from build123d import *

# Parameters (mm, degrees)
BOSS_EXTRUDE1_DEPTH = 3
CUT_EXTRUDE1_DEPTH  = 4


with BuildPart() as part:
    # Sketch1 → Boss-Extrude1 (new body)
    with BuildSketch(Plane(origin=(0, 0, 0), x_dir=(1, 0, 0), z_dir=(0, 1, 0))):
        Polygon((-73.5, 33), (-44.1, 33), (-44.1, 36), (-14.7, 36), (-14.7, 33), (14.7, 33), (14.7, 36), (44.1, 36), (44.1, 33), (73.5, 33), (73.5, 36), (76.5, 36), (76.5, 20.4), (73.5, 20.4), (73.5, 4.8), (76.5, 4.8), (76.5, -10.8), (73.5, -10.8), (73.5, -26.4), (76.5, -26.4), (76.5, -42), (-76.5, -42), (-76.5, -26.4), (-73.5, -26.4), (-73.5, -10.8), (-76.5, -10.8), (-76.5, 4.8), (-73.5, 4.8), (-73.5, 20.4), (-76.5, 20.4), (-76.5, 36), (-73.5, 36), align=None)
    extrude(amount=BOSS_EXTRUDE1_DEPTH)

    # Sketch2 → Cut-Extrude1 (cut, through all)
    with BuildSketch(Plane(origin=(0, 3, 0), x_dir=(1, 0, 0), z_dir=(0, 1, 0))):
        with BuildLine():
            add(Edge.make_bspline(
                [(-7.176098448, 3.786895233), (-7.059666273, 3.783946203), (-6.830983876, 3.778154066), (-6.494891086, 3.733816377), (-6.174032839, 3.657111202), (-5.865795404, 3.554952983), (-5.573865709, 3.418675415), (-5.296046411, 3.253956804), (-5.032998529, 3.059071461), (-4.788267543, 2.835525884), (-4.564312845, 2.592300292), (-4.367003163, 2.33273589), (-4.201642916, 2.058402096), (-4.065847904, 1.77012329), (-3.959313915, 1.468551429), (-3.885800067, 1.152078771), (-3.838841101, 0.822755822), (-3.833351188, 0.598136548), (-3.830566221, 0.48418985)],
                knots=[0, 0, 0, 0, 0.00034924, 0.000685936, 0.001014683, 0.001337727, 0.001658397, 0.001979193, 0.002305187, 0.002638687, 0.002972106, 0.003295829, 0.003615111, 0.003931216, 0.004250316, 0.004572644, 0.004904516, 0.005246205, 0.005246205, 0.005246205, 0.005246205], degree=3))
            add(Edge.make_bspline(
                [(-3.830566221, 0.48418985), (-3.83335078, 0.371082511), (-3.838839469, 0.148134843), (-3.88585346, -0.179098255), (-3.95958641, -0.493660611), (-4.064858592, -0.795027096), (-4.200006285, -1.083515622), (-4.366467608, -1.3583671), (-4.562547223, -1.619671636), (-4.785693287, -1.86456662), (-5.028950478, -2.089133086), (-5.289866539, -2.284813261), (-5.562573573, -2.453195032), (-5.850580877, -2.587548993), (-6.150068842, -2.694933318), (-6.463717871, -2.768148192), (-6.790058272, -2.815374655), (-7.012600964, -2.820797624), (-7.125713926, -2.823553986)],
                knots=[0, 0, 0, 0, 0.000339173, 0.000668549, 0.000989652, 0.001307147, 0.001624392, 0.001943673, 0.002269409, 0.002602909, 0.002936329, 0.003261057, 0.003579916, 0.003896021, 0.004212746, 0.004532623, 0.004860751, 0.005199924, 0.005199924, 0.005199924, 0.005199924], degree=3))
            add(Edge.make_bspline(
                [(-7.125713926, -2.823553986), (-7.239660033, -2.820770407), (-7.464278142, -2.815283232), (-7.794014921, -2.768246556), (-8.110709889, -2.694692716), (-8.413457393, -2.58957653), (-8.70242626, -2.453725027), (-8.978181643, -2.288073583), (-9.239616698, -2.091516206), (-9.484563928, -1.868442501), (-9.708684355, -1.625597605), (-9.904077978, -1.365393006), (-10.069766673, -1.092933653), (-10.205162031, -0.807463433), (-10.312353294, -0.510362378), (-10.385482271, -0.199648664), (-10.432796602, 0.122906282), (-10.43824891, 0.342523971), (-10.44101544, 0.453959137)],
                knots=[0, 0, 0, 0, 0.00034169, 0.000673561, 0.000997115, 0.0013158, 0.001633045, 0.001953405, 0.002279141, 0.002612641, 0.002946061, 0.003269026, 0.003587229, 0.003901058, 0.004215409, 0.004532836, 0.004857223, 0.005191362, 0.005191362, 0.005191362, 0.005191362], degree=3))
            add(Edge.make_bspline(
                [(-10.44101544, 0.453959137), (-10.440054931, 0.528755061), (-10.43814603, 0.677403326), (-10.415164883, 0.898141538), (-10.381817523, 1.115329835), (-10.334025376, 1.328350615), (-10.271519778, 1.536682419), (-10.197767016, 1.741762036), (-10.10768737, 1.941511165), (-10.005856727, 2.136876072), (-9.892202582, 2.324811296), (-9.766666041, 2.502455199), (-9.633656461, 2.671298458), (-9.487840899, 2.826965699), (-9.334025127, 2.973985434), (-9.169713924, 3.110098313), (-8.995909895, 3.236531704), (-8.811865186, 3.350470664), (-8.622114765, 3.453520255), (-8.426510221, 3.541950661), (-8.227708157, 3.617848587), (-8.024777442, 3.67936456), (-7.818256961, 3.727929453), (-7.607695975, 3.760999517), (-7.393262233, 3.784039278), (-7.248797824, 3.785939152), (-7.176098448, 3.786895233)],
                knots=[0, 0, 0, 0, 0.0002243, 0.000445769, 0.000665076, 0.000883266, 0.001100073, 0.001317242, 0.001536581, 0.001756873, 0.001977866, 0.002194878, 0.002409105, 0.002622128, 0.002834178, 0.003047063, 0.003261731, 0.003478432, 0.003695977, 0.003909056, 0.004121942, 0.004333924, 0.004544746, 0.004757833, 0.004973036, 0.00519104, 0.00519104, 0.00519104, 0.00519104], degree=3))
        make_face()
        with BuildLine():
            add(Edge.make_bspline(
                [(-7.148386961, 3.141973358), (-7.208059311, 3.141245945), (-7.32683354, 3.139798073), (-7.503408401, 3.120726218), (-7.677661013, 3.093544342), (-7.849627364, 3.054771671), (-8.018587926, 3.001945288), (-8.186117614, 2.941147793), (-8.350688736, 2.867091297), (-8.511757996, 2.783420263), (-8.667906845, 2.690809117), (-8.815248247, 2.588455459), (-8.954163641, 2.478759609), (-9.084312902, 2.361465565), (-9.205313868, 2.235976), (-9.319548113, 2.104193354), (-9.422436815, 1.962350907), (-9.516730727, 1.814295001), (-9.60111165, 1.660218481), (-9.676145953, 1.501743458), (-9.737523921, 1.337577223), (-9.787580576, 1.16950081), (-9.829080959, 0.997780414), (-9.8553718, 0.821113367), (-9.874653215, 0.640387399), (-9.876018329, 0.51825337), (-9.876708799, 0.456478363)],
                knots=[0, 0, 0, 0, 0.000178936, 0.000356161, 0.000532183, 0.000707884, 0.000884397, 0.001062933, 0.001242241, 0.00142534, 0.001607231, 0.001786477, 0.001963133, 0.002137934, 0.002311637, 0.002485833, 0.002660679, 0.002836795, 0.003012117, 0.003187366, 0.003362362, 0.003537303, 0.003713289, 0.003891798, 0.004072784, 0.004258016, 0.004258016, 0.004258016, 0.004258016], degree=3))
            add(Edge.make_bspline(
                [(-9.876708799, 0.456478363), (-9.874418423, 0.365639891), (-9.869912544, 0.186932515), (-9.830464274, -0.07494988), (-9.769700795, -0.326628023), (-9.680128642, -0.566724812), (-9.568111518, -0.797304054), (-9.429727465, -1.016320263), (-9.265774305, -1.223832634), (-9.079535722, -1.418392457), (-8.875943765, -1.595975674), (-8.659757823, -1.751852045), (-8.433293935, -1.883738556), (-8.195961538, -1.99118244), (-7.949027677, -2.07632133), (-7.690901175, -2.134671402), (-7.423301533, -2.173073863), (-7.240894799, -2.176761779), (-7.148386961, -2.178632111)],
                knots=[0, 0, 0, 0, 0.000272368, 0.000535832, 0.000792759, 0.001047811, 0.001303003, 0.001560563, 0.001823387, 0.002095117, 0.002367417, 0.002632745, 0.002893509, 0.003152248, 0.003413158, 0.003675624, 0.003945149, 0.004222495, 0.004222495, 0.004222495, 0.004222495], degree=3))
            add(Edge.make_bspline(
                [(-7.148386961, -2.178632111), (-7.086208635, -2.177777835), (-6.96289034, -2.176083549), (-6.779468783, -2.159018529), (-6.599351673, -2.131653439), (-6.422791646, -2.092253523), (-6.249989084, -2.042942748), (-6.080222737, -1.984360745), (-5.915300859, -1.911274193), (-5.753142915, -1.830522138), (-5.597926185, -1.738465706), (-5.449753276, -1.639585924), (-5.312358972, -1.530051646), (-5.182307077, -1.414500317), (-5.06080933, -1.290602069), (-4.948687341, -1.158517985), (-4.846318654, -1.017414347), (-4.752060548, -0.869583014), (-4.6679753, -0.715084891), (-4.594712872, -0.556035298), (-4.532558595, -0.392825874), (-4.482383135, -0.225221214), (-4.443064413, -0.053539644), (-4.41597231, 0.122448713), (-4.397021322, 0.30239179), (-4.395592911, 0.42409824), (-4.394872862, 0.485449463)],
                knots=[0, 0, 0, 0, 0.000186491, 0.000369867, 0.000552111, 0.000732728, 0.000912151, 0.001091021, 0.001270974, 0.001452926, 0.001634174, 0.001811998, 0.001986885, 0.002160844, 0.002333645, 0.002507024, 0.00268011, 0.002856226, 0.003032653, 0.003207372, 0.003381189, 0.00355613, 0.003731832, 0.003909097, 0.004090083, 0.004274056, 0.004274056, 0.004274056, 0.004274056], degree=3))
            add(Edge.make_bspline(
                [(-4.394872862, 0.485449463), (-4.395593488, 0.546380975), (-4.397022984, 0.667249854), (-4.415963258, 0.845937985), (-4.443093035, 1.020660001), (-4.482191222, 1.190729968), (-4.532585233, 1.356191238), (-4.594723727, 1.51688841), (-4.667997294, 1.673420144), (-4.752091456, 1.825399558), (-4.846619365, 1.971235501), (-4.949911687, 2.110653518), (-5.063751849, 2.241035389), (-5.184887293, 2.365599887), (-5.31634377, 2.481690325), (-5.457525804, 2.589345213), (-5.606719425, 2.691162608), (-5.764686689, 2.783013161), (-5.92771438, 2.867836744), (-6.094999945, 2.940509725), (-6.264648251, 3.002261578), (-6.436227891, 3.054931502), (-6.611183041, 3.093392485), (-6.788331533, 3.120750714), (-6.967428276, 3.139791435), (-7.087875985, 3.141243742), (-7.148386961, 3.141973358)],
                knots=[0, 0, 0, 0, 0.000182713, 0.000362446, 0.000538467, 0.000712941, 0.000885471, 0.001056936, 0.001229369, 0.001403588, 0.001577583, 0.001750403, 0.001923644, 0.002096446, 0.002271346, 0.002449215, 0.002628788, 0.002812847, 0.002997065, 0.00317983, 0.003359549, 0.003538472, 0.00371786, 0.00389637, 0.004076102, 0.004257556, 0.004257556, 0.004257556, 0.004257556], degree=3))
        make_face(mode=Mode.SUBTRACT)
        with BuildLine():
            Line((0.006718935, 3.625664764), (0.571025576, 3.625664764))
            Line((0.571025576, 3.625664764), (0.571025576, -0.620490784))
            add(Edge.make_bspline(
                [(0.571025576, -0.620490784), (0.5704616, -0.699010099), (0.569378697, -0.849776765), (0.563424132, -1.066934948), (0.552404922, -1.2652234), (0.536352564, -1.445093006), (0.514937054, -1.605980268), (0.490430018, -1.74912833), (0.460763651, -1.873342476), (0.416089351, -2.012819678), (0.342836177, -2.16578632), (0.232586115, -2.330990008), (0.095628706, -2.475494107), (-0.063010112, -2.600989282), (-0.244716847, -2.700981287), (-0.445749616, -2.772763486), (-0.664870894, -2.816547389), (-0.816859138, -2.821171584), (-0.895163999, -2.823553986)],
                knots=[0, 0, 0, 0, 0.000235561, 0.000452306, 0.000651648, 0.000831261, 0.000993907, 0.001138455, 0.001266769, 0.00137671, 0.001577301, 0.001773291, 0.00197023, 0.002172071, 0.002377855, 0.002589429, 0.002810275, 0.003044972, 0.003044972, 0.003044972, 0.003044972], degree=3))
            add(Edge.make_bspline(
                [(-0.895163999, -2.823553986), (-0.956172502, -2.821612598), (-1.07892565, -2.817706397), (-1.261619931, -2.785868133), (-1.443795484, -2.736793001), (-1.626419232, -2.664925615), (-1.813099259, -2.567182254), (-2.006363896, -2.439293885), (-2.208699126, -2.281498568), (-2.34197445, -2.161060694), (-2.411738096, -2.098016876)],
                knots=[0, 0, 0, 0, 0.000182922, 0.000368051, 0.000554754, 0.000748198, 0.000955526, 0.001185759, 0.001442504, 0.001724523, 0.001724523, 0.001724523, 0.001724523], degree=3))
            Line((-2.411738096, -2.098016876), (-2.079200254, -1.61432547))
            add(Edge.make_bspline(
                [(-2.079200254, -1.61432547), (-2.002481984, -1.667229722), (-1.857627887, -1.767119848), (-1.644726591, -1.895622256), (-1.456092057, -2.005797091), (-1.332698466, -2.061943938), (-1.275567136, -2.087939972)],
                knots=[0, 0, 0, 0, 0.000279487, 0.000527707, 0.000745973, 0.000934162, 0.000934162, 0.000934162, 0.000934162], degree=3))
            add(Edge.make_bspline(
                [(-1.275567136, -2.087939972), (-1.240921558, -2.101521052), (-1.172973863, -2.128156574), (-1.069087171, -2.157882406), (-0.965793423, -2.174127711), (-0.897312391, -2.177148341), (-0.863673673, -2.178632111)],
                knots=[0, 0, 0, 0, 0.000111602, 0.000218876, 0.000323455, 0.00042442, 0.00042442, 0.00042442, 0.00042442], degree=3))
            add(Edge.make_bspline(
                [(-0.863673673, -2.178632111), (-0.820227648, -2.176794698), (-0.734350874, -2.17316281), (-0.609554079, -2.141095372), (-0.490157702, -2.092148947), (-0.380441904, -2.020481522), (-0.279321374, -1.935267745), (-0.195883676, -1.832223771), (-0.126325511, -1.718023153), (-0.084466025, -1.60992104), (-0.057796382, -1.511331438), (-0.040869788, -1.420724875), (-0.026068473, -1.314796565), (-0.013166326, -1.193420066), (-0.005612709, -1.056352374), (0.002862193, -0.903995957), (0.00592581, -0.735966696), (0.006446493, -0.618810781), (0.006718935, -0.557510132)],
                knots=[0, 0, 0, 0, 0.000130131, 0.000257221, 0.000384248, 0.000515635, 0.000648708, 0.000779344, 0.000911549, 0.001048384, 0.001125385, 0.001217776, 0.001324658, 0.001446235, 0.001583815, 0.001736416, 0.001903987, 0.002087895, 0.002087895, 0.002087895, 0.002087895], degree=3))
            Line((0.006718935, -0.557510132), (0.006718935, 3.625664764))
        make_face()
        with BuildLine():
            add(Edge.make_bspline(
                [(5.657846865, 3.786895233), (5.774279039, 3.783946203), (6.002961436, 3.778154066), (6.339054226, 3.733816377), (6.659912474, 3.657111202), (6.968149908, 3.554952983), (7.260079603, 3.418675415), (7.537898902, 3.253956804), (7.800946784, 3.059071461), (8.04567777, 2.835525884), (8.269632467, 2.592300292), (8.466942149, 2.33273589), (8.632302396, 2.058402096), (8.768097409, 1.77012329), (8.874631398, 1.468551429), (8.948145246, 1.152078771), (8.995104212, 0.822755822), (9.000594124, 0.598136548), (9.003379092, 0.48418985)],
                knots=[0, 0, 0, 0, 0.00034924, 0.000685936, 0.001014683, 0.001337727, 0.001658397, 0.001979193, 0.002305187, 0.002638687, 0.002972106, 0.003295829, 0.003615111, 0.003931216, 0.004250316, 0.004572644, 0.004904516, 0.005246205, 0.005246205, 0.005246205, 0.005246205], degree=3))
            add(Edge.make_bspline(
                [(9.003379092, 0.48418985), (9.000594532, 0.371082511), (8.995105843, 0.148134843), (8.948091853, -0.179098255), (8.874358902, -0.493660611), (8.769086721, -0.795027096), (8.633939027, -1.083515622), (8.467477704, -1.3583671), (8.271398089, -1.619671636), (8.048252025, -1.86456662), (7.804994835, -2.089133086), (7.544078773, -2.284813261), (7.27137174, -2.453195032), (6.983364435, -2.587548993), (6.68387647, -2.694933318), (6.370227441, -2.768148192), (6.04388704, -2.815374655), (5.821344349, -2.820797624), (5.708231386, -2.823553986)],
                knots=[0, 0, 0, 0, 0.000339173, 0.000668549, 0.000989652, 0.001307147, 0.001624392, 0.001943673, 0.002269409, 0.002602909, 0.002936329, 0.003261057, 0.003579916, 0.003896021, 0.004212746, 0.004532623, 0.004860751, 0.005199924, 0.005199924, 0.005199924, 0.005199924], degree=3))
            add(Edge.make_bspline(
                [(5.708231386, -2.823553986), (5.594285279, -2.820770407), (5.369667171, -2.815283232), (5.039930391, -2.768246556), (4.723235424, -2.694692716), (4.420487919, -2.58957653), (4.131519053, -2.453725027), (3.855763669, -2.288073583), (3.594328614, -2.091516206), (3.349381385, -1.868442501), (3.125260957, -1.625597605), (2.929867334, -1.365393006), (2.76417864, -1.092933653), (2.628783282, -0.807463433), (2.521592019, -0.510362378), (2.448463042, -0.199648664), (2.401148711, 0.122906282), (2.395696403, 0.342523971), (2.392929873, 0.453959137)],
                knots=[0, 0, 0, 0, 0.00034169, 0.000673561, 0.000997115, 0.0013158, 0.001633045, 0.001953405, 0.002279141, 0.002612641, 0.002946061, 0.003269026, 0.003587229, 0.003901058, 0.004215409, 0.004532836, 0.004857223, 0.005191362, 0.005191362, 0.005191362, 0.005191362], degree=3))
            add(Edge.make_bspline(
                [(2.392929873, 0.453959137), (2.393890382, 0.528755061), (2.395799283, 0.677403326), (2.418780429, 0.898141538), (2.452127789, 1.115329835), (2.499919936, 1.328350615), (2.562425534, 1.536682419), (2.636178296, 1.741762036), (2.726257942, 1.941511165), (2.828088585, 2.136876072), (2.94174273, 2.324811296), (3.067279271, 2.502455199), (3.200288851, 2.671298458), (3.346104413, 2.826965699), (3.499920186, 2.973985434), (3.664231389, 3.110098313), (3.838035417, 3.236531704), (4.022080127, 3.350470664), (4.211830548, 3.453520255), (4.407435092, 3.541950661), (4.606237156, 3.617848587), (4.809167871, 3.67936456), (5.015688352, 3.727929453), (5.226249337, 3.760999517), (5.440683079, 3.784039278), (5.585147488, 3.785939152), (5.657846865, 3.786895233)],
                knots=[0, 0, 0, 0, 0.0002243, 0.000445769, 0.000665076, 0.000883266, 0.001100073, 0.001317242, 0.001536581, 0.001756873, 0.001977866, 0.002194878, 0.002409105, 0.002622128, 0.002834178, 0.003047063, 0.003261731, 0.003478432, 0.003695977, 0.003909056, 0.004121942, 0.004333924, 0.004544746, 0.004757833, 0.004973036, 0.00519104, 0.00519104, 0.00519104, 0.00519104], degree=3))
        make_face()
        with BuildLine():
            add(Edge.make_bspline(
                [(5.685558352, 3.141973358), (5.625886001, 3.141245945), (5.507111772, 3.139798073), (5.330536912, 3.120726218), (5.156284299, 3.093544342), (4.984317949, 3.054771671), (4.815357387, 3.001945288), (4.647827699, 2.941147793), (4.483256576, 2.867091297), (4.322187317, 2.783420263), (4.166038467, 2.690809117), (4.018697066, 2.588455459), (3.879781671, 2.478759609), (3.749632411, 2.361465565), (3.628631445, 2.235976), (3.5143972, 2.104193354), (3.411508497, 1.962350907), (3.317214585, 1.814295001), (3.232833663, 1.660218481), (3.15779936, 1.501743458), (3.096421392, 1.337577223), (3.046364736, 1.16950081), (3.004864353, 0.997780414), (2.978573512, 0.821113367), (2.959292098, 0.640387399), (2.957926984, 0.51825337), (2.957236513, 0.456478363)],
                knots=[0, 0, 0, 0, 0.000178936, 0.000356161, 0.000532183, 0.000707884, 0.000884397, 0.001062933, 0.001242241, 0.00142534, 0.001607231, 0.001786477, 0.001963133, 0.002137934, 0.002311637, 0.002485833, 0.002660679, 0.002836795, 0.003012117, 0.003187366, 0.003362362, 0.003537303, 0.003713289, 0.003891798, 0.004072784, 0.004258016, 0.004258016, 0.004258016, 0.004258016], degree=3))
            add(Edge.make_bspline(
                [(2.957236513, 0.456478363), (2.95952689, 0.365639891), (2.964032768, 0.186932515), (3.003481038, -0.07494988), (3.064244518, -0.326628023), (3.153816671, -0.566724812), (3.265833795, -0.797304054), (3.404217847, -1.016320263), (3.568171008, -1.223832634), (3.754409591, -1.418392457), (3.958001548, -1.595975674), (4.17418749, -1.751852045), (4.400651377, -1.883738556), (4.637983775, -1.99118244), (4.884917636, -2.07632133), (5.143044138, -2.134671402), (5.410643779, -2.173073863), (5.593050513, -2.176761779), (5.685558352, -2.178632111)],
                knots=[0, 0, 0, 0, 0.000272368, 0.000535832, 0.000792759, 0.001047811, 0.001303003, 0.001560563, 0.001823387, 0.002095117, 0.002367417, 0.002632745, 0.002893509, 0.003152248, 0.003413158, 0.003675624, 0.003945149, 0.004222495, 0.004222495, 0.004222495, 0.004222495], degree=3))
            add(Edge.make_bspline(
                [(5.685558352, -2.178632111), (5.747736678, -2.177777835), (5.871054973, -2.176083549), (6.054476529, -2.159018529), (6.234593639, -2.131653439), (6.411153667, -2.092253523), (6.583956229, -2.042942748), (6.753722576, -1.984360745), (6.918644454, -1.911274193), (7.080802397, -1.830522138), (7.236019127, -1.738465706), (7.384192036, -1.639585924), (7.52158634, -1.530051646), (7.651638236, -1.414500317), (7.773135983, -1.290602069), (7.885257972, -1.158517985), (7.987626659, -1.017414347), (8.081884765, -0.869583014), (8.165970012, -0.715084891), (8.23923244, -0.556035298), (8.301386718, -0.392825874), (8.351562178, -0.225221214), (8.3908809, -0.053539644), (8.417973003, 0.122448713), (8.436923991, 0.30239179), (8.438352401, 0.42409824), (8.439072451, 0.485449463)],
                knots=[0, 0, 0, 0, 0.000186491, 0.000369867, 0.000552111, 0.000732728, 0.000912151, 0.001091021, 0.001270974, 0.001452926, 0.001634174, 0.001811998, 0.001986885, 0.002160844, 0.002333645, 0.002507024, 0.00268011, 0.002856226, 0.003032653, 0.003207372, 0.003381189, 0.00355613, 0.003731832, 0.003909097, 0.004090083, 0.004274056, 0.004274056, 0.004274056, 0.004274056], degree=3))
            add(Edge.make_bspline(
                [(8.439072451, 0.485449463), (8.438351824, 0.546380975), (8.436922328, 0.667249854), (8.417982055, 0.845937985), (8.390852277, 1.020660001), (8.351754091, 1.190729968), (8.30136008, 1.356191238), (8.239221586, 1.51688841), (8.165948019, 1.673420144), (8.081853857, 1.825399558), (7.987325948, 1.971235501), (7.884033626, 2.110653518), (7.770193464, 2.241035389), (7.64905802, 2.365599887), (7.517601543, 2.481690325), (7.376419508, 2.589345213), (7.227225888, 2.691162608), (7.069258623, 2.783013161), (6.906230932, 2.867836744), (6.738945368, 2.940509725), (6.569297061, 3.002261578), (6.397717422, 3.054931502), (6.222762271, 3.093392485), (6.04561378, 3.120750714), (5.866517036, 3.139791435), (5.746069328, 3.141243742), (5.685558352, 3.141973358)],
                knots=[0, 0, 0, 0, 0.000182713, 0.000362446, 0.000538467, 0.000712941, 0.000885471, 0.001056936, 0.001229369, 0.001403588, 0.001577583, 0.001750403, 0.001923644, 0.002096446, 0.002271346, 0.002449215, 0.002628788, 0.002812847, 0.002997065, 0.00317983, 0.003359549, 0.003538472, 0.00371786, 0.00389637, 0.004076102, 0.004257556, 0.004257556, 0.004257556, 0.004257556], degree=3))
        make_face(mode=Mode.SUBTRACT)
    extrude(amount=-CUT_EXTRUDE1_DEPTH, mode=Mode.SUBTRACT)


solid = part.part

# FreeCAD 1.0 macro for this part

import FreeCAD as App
import Part
import Sketcher
from FreeCAD import Vector
Q = App.Units.Quantity

doc = App.newDocument("Part")
params = doc.addObject("Spreadsheet::Sheet", "Params")
for row, (alias, value) in enumerate([
    ("sketch1_width", "3 mm"),
    ("sketch1_width2", "153 mm"),
    ("sketch1_height", "15.6 mm"),
    ("pad1_length", "3 mm"),
], start=1):
    params.set(f"A{row}", alias)
    params.set(f"B{row}", "=" + value)
    params.setAlias(f"B{row}", alias)

body = doc.addObject("PartDesign::Body", "Body")
body.AllowCompound = True

# Sketch on XZ plane
sketch1 = doc.addObject("Sketcher::SketchObject", "Sketch")
body.addObject(sketch1)
sketch1.AttachmentSupport = (doc.XZ_Plane, [""])
sketch1.MapMode = "FlatFace"
sketch1.addGeometry(Part.LineSegment(Vector(-44.1, -33, 0), Vector(-73.5, -33, 0)), False)
sketch1.addGeometry(Part.LineSegment(Vector(-73.5, -33, 0), Vector(-73.5, -36, 0)), False)
sketch1.addGeometry(Part.LineSegment(Vector(-73.5, -36, 0), Vector(-76.5, -36, 0)), False)
sketch1.addGeometry(Part.LineSegment(Vector(-76.5, -36, 0), Vector(-76.5, -20.4, 0)), False)
sketch1.addGeometry(Part.LineSegment(Vector(-76.5, -20.4, 0), Vector(-73.5, -20.4, 0)), False)
sketch1.addGeometry(Part.LineSegment(Vector(-73.5, -20.4, 0), Vector(-73.5, -4.8, 0)), False)
sketch1.addGeometry(Part.LineSegment(Vector(-73.5, -4.8, 0), Vector(-76.5, -4.8, 0)), False)
sketch1.addGeometry(Part.LineSegment(Vector(-76.5, -4.8, 0), Vector(-76.5, 10.8, 0)), False)
sketch1.addGeometry(Part.LineSegment(Vector(-76.5, 10.8, 0), Vector(-73.5, 10.8, 0)), False)
sketch1.addGeometry(Part.LineSegment(Vector(-73.5, 10.8, 0), Vector(-73.5, 26.4, 0)), False)
sketch1.addGeometry(Part.LineSegment(Vector(-73.5, 26.4, 0), Vector(-76.5, 26.4, 0)), False)
sketch1.addGeometry(Part.LineSegment(Vector(-76.5, 26.4, 0), Vector(-76.5, 42, 0)), False)
sketch1.addGeometry(Part.LineSegment(Vector(-76.5, 42, 0), Vector(76.5, 42, 0)), False)
sketch1.addGeometry(Part.LineSegment(Vector(76.5, 42, 0), Vector(76.5, 26.4, 0)), False)
sketch1.addGeometry(Part.LineSegment(Vector(76.5, 26.4, 0), Vector(73.5, 26.4, 0)), False)
sketch1.addGeometry(Part.LineSegment(Vector(73.5, 26.4, 0), Vector(73.5, 10.8, 0)), False)
sketch1.addGeometry(Part.LineSegment(Vector(73.5, 10.8, 0), Vector(76.5, 10.8, 0)), False)
sketch1.addGeometry(Part.LineSegment(Vector(76.5, 10.8, 0), Vector(76.5, -4.8, 0)), False)
sketch1.addGeometry(Part.LineSegment(Vector(76.5, -4.8, 0), Vector(73.5, -4.8, 0)), False)
sketch1.addGeometry(Part.LineSegment(Vector(73.5, -4.8, 0), Vector(73.5, -20.4, 0)), False)
sketch1.addGeometry(Part.LineSegment(Vector(73.5, -20.4, 0), Vector(76.5, -20.4, 0)), False)
sketch1.addGeometry(Part.LineSegment(Vector(76.5, -20.4, 0), Vector(76.5, -36, 0)), False)
sketch1.addGeometry(Part.LineSegment(Vector(76.5, -36, 0), Vector(73.5, -36, 0)), False)
sketch1.addGeometry(Part.LineSegment(Vector(73.5, -36, 0), Vector(73.5, -33, 0)), False)
sketch1.addGeometry(Part.LineSegment(Vector(73.5, -33, 0), Vector(44.1, -33, 0)), False)
sketch1.addGeometry(Part.LineSegment(Vector(44.1, -33, 0), Vector(44.1, -36, 0)), False)
sketch1.addGeometry(Part.LineSegment(Vector(44.1, -36, 0), Vector(14.7, -36, 0)), False)
sketch1.addGeometry(Part.LineSegment(Vector(14.7, -36, 0), Vector(14.7, -33, 0)), False)
sketch1.addGeometry(Part.LineSegment(Vector(14.7, -33, 0), Vector(-14.7, -33, 0)), False)
sketch1.addGeometry(Part.LineSegment(Vector(-14.7, -33, 0), Vector(-14.7, -36, 0)), False)
sketch1.addGeometry(Part.LineSegment(Vector(-14.7, -36, 0), Vector(-44.1, -36, 0)), False)
sketch1.addGeometry(Part.LineSegment(Vector(-44.1, -36, 0), Vector(-44.1, -33, 0)), False)
sketch1.addConstraint(Sketcher.Constraint("Coincident", 0, 2, 1, 1))
sketch1.addConstraint(Sketcher.Constraint("Coincident", 1, 2, 2, 1))
sketch1.addConstraint(Sketcher.Constraint("Coincident", 2, 2, 3, 1))
sketch1.addConstraint(Sketcher.Constraint("Coincident", 3, 2, 4, 1))
sketch1.addConstraint(Sketcher.Constraint("Coincident", 4, 2, 5, 1))
sketch1.addConstraint(Sketcher.Constraint("Coincident", 5, 2, 6, 1))
sketch1.addConstraint(Sketcher.Constraint("Coincident", 6, 2, 7, 1))
sketch1.addConstraint(Sketcher.Constraint("Coincident", 7, 2, 8, 1))
sketch1.addConstraint(Sketcher.Constraint("Coincident", 8, 2, 9, 1))
sketch1.addConstraint(Sketcher.Constraint("Coincident", 9, 2, 10, 1))
sketch1.addConstraint(Sketcher.Constraint("Coincident", 10, 2, 11, 1))
sketch1.addConstraint(Sketcher.Constraint("Coincident", 11, 2, 12, 1))
sketch1.addConstraint(Sketcher.Constraint("Coincident", 12, 2, 13, 1))
sketch1.addConstraint(Sketcher.Constraint("Coincident", 13, 2, 14, 1))
sketch1.addConstraint(Sketcher.Constraint("Coincident", 14, 2, 15, 1))
sketch1.addConstraint(Sketcher.Constraint("Coincident", 15, 2, 16, 1))
sketch1.addConstraint(Sketcher.Constraint("Coincident", 16, 2, 17, 1))
sketch1.addConstraint(Sketcher.Constraint("Coincident", 17, 2, 18, 1))
sketch1.addConstraint(Sketcher.Constraint("Coincident", 18, 2, 19, 1))
sketch1.addConstraint(Sketcher.Constraint("Coincident", 19, 2, 20, 1))
sketch1.addConstraint(Sketcher.Constraint("Coincident", 20, 2, 21, 1))
sketch1.addConstraint(Sketcher.Constraint("Coincident", 21, 2, 22, 1))
sketch1.addConstraint(Sketcher.Constraint("Coincident", 22, 2, 23, 1))
sketch1.addConstraint(Sketcher.Constraint("Coincident", 23, 2, 24, 1))
sketch1.addConstraint(Sketcher.Constraint("Coincident", 24, 2, 25, 1))
sketch1.addConstraint(Sketcher.Constraint("Coincident", 25, 2, 26, 1))
sketch1.addConstraint(Sketcher.Constraint("Coincident", 26, 2, 27, 1))
sketch1.addConstraint(Sketcher.Constraint("Coincident", 27, 2, 28, 1))
sketch1.addConstraint(Sketcher.Constraint("Coincident", 28, 2, 29, 1))
sketch1.addConstraint(Sketcher.Constraint("Coincident", 29, 2, 30, 1))
sketch1.addConstraint(Sketcher.Constraint("Coincident", 30, 2, 31, 1))
sketch1.addConstraint(Sketcher.Constraint("Coincident", 31, 2, 0, 1))
sketch1.addConstraint(Sketcher.Constraint("Horizontal", 0))
sketch1.addConstraint(Sketcher.Constraint("Vertical", 1))
sketch1.addConstraint(Sketcher.Constraint("Horizontal", 2))
sketch1.addConstraint(Sketcher.Constraint("Vertical", 3))
sketch1.addConstraint(Sketcher.Constraint("Horizontal", 4))
sketch1.addConstraint(Sketcher.Constraint("Vertical", 5))
sketch1.addConstraint(Sketcher.Constraint("Horizontal", 6))
sketch1.addConstraint(Sketcher.Constraint("Vertical", 7))
sketch1.addConstraint(Sketcher.Constraint("Horizontal", 8))
sketch1.addConstraint(Sketcher.Constraint("Vertical", 9))
sketch1.addConstraint(Sketcher.Constraint("Horizontal", 10))
sketch1.addConstraint(Sketcher.Constraint("Vertical", 11))
sketch1.addConstraint(Sketcher.Constraint("Horizontal", 12))
sketch1.addConstraint(Sketcher.Constraint("Vertical", 13))
sketch1.addConstraint(Sketcher.Constraint("Horizontal", 14))
sketch1.addConstraint(Sketcher.Constraint("Vertical", 15))
sketch1.addConstraint(Sketcher.Constraint("Horizontal", 16))
sketch1.addConstraint(Sketcher.Constraint("Vertical", 17))
sketch1.addConstraint(Sketcher.Constraint("Horizontal", 18))
sketch1.addConstraint(Sketcher.Constraint("Vertical", 19))
sketch1.addConstraint(Sketcher.Constraint("Horizontal", 20))
sketch1.addConstraint(Sketcher.Constraint("Vertical", 21))
sketch1.addConstraint(Sketcher.Constraint("Horizontal", 22))
sketch1.addConstraint(Sketcher.Constraint("Vertical", 23))
sketch1.addConstraint(Sketcher.Constraint("Horizontal", 24))
sketch1.addConstraint(Sketcher.Constraint("Vertical", 25))
sketch1.addConstraint(Sketcher.Constraint("Horizontal", 26))
sketch1.addConstraint(Sketcher.Constraint("Vertical", 27))
sketch1.addConstraint(Sketcher.Constraint("Horizontal", 28))
sketch1.addConstraint(Sketcher.Constraint("Vertical", 29))
sketch1.addConstraint(Sketcher.Constraint("Horizontal", 30))
sketch1.addConstraint(Sketcher.Constraint("Vertical", 31))
sketch1.addConstraint(Sketcher.Constraint("Symmetric", 10, 2, 13, 2, -2))
sketch1.addConstraint(Sketcher.Constraint("Symmetric", 8, 2, 15, 2, -2))
sketch1.addConstraint(Sketcher.Constraint("Symmetric", 6, 2, 17, 2, -2))
sketch1.addConstraint(Sketcher.Constraint("Symmetric", 4, 2, 19, 2, -2))
sketch1.addConstraint(Sketcher.Constraint("Symmetric", 2, 2, 21, 2, -2))
sketch1.addConstraint(Sketcher.Constraint("Symmetric", 0, 2, 23, 2, -2))
sketch1.addConstraint(Sketcher.Constraint("Symmetric", 26, 2, 29, 2, -2))
sketch1.addConstraint(Sketcher.Constraint("Horizontal", 22, 2, 25, 2))
sketch1.addConstraint(Sketcher.Constraint("Horizontal", 24, 2, 27, 2))
sketch1.addConstraint(Sketcher.Constraint("Vertical", 1, 2, 4, 2))
sketch1.addConstraint(Sketcher.Constraint("Vertical", 3, 2, 6, 2))
sketch1.addConstraint(Sketcher.Constraint("Vertical", 5, 2, 8, 2))
sketch1.addConstraint(Sketcher.Constraint("Vertical", 7, 2, 10, 2))
sketch1.addConstraint(Sketcher.Constraint("Equal", 0, 24))
sketch1.addConstraint(Sketcher.Constraint("Equal", 24, 26))
sketch1.addConstraint(Sketcher.Constraint("Equal", 26, 28))
sketch1.addConstraint(Sketcher.Constraint("Equal", 22, 1))
sketch1.addConstraint(Sketcher.Constraint("Equal", 3, 5))
sketch1.addConstraint(Sketcher.Constraint("Equal", 5, 7))
sketch1.addConstraint(Sketcher.Constraint("Equal", 7, 9))
sketch1.addConstraint(Sketcher.Constraint("Equal", 9, 11))
sketch1.addConstraint(Sketcher.Constraint("DistanceX", 2, 2, 2, 1, Q("3 mm")))
sketch1.addConstraint(Sketcher.Constraint("DistanceX", 12, 1, 12, 2, Q("153 mm")))
sketch1.addConstraint(Sketcher.Constraint("DistanceY", 3, 1, 3, 2, Q("15.6 mm")))
sketch1.addConstraint(Sketcher.Constraint("DistanceY", 0, 2, -1, 1, Q("33 mm")))
sketch1.setExpression("Constraints[85]", "Params.sketch1_width")
sketch1.setExpression("Constraints[86]", "Params.sketch1_width2")
sketch1.setExpression("Constraints[87]", "Params.sketch1_height")
pad1 = doc.addObject("PartDesign::Pad", "Pad")
body.addObject(pad1)
pad1.Profile = sketch1
pad1.setExpression("Length", "Params.pad1_length")
pad1.Reversed = True

# Sketch on XZ plane
sketch2 = doc.addObject("Sketcher::SketchObject", "Sketch001")
body.addObject(sketch2)
sketch2.AttachmentSupport = (doc.XZ_Plane, [""])
sketch2.MapMode = "FlatFace"
sketch2.AttachmentOffset = App.Placement(Vector(0, 0, -3), App.Rotation())
sketch2.addGeometry(Part.BSplineCurve([Vector(-7.176098, -3.786895, 0), Vector(-7.059666, -3.783946, 0), Vector(-6.830984, -3.778154, 0), Vector(-6.494891, -3.733816, 0), Vector(-6.174033, -3.657111, 0), Vector(-5.865795, -3.554953, 0), Vector(-5.573866, -3.418675, 0), Vector(-5.296046, -3.253957, 0), Vector(-5.032999, -3.059071, 0), Vector(-4.788268, -2.835526, 0), Vector(-4.564313, -2.5923, 0), Vector(-4.367003, -2.332736, 0), Vector(-4.201643, -2.058402, 0), Vector(-4.065848, -1.770123, 0), Vector(-3.959314, -1.468551, 0), Vector(-3.8858, -1.152079, 0), Vector(-3.838841, -0.822756, 0), Vector(-3.833351, -0.598137, 0), Vector(-3.830566, -0.48419, 0)], [4, 1, 1, 1, 1, 1, 1, 1, 1, 1, 1, 1, 1, 1, 1, 1, 4], [0, 0.00034924, 0.000685936, 0.001014683, 0.001337727, 0.001658397, 0.001979193, 0.002305187, 0.002638687, 0.002972106, 0.003295829, 0.003615111, 0.003931216, 0.004250316, 0.004572644, 0.004904516, 0.005246205], False, 3, [1, 1, 1, 1, 1, 1, 1, 1, 1, 1, 1, 1, 1, 1, 1, 1, 1, 1, 1], False), False)
sketch2.addGeometry(Part.BSplineCurve([Vector(-10.441015, -0.453959, 0), Vector(-10.440055, -0.528755, 0), Vector(-10.438146, -0.677403, 0), Vector(-10.415165, -0.898142, 0), Vector(-10.381818, -1.11533, 0), Vector(-10.334025, -1.328351, 0), Vector(-10.27152, -1.536682, 0), Vector(-10.197767, -1.741762, 0), Vector(-10.107687, -1.941511, 0), Vector(-10.005857, -2.136876, 0), Vector(-9.892203, -2.324811, 0), Vector(-9.766666, -2.502455, 0), Vector(-9.633656, -2.671298, 0), Vector(-9.487841, -2.826966, 0), Vector(-9.334025, -2.973985, 0), Vector(-9.169714, -3.110098, 0), Vector(-8.99591, -3.236532, 0), Vector(-8.811865, -3.350471, 0), Vector(-8.622115, -3.45352, 0), Vector(-8.42651, -3.541951, 0), Vector(-8.227708, -3.617849, 0), Vector(-8.024777, -3.679365, 0), Vector(-7.818257, -3.727929, 0), Vector(-7.607696, -3.761, 0), Vector(-7.393262, -3.784039, 0), Vector(-7.248798, -3.785939, 0), Vector(-7.176098, -3.786895, 0)], [4, 1, 1, 1, 1, 1, 1, 1, 1, 1, 1, 1, 1, 1, 1, 1, 1, 1, 1, 1, 1, 1, 1, 1, 4], [0, 0.0002243, 0.000445769, 0.000665076, 0.000883266, 0.001100073, 0.001317242, 0.001536581, 0.001756873, 0.001977866, 0.002194878, 0.002409105, 0.002622128, 0.002834178, 0.003047063, 0.003261731, 0.003478432, 0.003695977, 0.003909056, 0.004121942, 0.004333924, 0.004544746, 0.004757833, 0.004973036, 0.00519104], False, 3, [1, 1, 1, 1, 1, 1, 1, 1, 1, 1, 1, 1, 1, 1, 1, 1, 1, 1, 1, 1, 1, 1, 1, 1, 1, 1, 1], False), False)
sketch2.addGeometry(Part.BSplineCurve([Vector(-7.125714, 2.823554, 0), Vector(-7.23966, 2.82077, 0), Vector(-7.464278, 2.815283, 0), Vector(-7.794015, 2.768247, 0), Vector(-8.11071, 2.694693, 0), Vector(-8.413457, 2.589577, 0), Vector(-8.702426, 2.453725, 0), Vector(-8.978182, 2.288074, 0), Vector(-9.239617, 2.091516, 0), Vector(-9.484564, 1.868443, 0), Vector(-9.708684, 1.625598, 0), Vector(-9.904078, 1.365393, 0), Vector(-10.069767, 1.092934, 0), Vector(-10.205162, 0.807463, 0), Vector(-10.312353, 0.510362, 0), Vector(-10.385482, 0.199649, 0), Vector(-10.432797, -0.122906, 0), Vector(-10.438249, -0.342524, 0), Vector(-10.441015, -0.453959, 0)], [4, 1, 1, 1, 1, 1, 1, 1, 1, 1, 1, 1, 1, 1, 1, 1, 4], [0, 0.00034169, 0.000673561, 0.000997115, 0.0013158, 0.001633045, 0.001953405, 0.002279141, 0.002612641, 0.002946061, 0.003269026, 0.003587229, 0.003901058, 0.004215409, 0.004532836, 0.004857223, 0.005191362], False, 3, [1, 1, 1, 1, 1, 1, 1, 1, 1, 1, 1, 1, 1, 1, 1, 1, 1, 1, 1], False), False)
sketch2.addGeometry(Part.BSplineCurve([Vector(-3.830566, -0.48419, 0), Vector(-3.833351, -0.371083, 0), Vector(-3.838839, -0.148135, 0), Vector(-3.885853, 0.179098, 0), Vector(-3.959586, 0.493661, 0), Vector(-4.064859, 0.795027, 0), Vector(-4.200006, 1.083516, 0), Vector(-4.366468, 1.358367, 0), Vector(-4.562547, 1.619672, 0), Vector(-4.785693, 1.864567, 0), Vector(-5.02895, 2.089133, 0), Vector(-5.289867, 2.284813, 0), Vector(-5.562574, 2.453195, 0), Vector(-5.850581, 2.587549, 0), Vector(-6.150069, 2.694933, 0), Vector(-6.463718, 2.768148, 0), Vector(-6.790058, 2.815375, 0), Vector(-7.012601, 2.820798, 0), Vector(-7.125714, 2.823554, 0)], [4, 1, 1, 1, 1, 1, 1, 1, 1, 1, 1, 1, 1, 1, 1, 1, 4], [0, 0.000339173, 0.000668549, 0.000989652, 0.001307147, 0.001624392, 0.001943673, 0.002269409, 0.002602909, 0.002936329, 0.003261057, 0.003579916, 0.003896021, 0.004212746, 0.004532623, 0.004860751, 0.005199924], False, 3, [1, 1, 1, 1, 1, 1, 1, 1, 1, 1, 1, 1, 1, 1, 1, 1, 1, 1, 1], False), False)
sketch2.addGeometry(Part.BSplineCurve([Vector(-4.394873, -0.485449, 0), Vector(-4.395593, -0.546381, 0), Vector(-4.397023, -0.66725, 0), Vector(-4.415963, -0.845938, 0), Vector(-4.443093, -1.02066, 0), Vector(-4.482191, -1.19073, 0), Vector(-4.532585, -1.356191, 0), Vector(-4.594724, -1.516888, 0), Vector(-4.667997, -1.67342, 0), Vector(-4.752091, -1.8254, 0), Vector(-4.846619, -1.971236, 0), Vector(-4.949912, -2.110654, 0), Vector(-5.063752, -2.241035, 0), Vector(-5.184887, -2.3656, 0), Vector(-5.316344, -2.48169, 0), Vector(-5.457526, -2.589345, 0), Vector(-5.606719, -2.691163, 0), Vector(-5.764687, -2.783013, 0), Vector(-5.927714, -2.867837, 0), Vector(-6.095, -2.94051, 0), Vector(-6.264648, -3.002262, 0), Vector(-6.436228, -3.054932, 0), Vector(-6.611183, -3.093392, 0), Vector(-6.788332, -3.120751, 0), Vector(-6.967428, -3.139791, 0), Vector(-7.087876, -3.141244, 0), Vector(-7.148387, -3.141973, 0)], [4, 1, 1, 1, 1, 1, 1, 1, 1, 1, 1, 1, 1, 1, 1, 1, 1, 1, 1, 1, 1, 1, 1, 1, 4], [0, 0.000182713, 0.000362446, 0.000538467, 0.000712941, 0.000885471, 0.001056936, 0.001229369, 0.001403588, 0.001577583, 0.001750403, 0.001923644, 0.002096446, 0.002271346, 0.002449215, 0.002628788, 0.002812847, 0.002997065, 0.00317983, 0.003359549, 0.003538472, 0.00371786, 0.00389637, 0.004076102, 0.004257556], False, 3, [1, 1, 1, 1, 1, 1, 1, 1, 1, 1, 1, 1, 1, 1, 1, 1, 1, 1, 1, 1, 1, 1, 1, 1, 1, 1, 1], False), False)
sketch2.addGeometry(Part.BSplineCurve([Vector(-7.148387, 2.178632, 0), Vector(-7.086209, 2.177778, 0), Vector(-6.96289, 2.176084, 0), Vector(-6.779469, 2.159019, 0), Vector(-6.599352, 2.131653, 0), Vector(-6.422792, 2.092254, 0), Vector(-6.249989, 2.042943, 0), Vector(-6.080223, 1.984361, 0), Vector(-5.915301, 1.911274, 0), Vector(-5.753143, 1.830522, 0), Vector(-5.597926, 1.738466, 0), Vector(-5.449753, 1.639586, 0), Vector(-5.312359, 1.530052, 0), Vector(-5.182307, 1.4145, 0), Vector(-5.060809, 1.290602, 0), Vector(-4.948687, 1.158518, 0), Vector(-4.846319, 1.017414, 0), Vector(-4.752061, 0.869583, 0), Vector(-4.667975, 0.715085, 0), Vector(-4.594713, 0.556035, 0), Vector(-4.532559, 0.392826, 0), Vector(-4.482383, 0.225221, 0), Vector(-4.443064, 0.05354, 0), Vector(-4.415972, -0.122449, 0), Vector(-4.397021, -0.302392, 0), Vector(-4.395593, -0.424098, 0), Vector(-4.394873, -0.485449, 0)], [4, 1, 1, 1, 1, 1, 1, 1, 1, 1, 1, 1, 1, 1, 1, 1, 1, 1, 1, 1, 1, 1, 1, 1, 4], [0, 0.000186491, 0.000369867, 0.000552111, 0.000732728, 0.000912151, 0.001091021, 0.001270974, 0.001452926, 0.001634174, 0.001811998, 0.001986885, 0.002160844, 0.002333645, 0.002507024, 0.00268011, 0.002856226, 0.003032653, 0.003207372, 0.003381189, 0.00355613, 0.003731832, 0.003909097, 0.004090083, 0.004274056], False, 3, [1, 1, 1, 1, 1, 1, 1, 1, 1, 1, 1, 1, 1, 1, 1, 1, 1, 1, 1, 1, 1, 1, 1, 1, 1, 1, 1], False), False)
sketch2.addGeometry(Part.BSplineCurve([Vector(-9.876709, -0.456478, 0), Vector(-9.874418, -0.36564, 0), Vector(-9.869913, -0.186933, 0), Vector(-9.830464, 0.07495, 0), Vector(-9.769701, 0.326628, 0), Vector(-9.680129, 0.566725, 0), Vector(-9.568112, 0.797304, 0), Vector(-9.429727, 1.01632, 0), Vector(-9.265774, 1.223833, 0), Vector(-9.079536, 1.418392, 0), Vector(-8.875944, 1.595976, 0), Vector(-8.659758, 1.751852, 0), Vector(-8.433294, 1.883739, 0), Vector(-8.195962, 1.991182, 0), Vector(-7.949028, 2.076321, 0), Vector(-7.690901, 2.134671, 0), Vector(-7.423302, 2.173074, 0), Vector(-7.240895, 2.176762, 0), Vector(-7.148387, 2.178632, 0)], [4, 1, 1, 1, 1, 1, 1, 1, 1, 1, 1, 1, 1, 1, 1, 1, 4], [0, 0.000272368, 0.000535832, 0.000792759, 0.001047811, 0.001303003, 0.001560563, 0.001823387, 0.002095117, 0.002367417, 0.002632745, 0.002893509, 0.003152248, 0.003413158, 0.003675624, 0.003945149, 0.004222495], False, 3, [1, 1, 1, 1, 1, 1, 1, 1, 1, 1, 1, 1, 1, 1, 1, 1, 1, 1, 1], False), False)
sketch2.addGeometry(Part.BSplineCurve([Vector(-7.148387, -3.141973, 0), Vector(-7.208059, -3.141246, 0), Vector(-7.326834, -3.139798, 0), Vector(-7.503408, -3.120726, 0), Vector(-7.677661, -3.093544, 0), Vector(-7.849627, -3.054772, 0), Vector(-8.018588, -3.001945, 0), Vector(-8.186118, -2.941148, 0), Vector(-8.350689, -2.867091, 0), Vector(-8.511758, -2.78342, 0), Vector(-8.667907, -2.690809, 0), Vector(-8.815248, -2.588455, 0), Vector(-8.954164, -2.47876, 0), Vector(-9.084313, -2.361466, 0), Vector(-9.205314, -2.235976, 0), Vector(-9.319548, -2.104193, 0), Vector(-9.422437, -1.962351, 0), Vector(-9.516731, -1.814295, 0), Vector(-9.601112, -1.660218, 0), Vector(-9.676146, -1.501743, 0), Vector(-9.737524, -1.337577, 0), Vector(-9.787581, -1.169501, 0), Vector(-9.829081, -0.99778, 0), Vector(-9.855372, -0.821113, 0), Vector(-9.874653, -0.640387, 0), Vector(-9.876018, -0.518253, 0), Vector(-9.876709, -0.456478, 0)], [4, 1, 1, 1, 1, 1, 1, 1, 1, 1, 1, 1, 1, 1, 1, 1, 1, 1, 1, 1, 1, 1, 1, 1, 4], [0, 0.000178936, 0.000356161, 0.000532183, 0.000707884, 0.000884397, 0.001062933, 0.001242241, 0.00142534, 0.001607231, 0.001786477, 0.001963133, 0.002137934, 0.002311637, 0.002485833, 0.002660679, 0.002836795, 0.003012117, 0.003187366, 0.003362362, 0.003537303, 0.003713289, 0.003891798, 0.004072784, 0.004258016], False, 3, [1, 1, 1, 1, 1, 1, 1, 1, 1, 1, 1, 1, 1, 1, 1, 1, 1, 1, 1, 1, 1, 1, 1, 1, 1, 1, 1], False), False)
sketch2.addGeometry(Part.LineSegment(Vector(0.571026, -3.625665, 0), Vector(0.006719, -3.625665, 0)), False)
sketch2.addGeometry(Part.LineSegment(Vector(0.006719, -3.625665, 0), Vector(0.006719, 0.55751, 0)), False)
sketch2.addGeometry(Part.BSplineCurve([Vector(-0.863674, 2.178632, 0), Vector(-0.820228, 2.176795, 0), Vector(-0.734351, 2.173163, 0), Vector(-0.609554, 2.141095, 0), Vector(-0.490158, 2.092149, 0), Vector(-0.380442, 2.020482, 0), Vector(-0.279321, 1.935268, 0), Vector(-0.195884, 1.832224, 0), Vector(-0.126326, 1.718023, 0), Vector(-0.084466, 1.609921, 0), Vector(-0.057796, 1.511331, 0), Vector(-0.04087, 1.420725, 0), Vector(-0.026068, 1.314797, 0), Vector(-0.013166, 1.19342, 0), Vector(-0.005613, 1.056352, 0), Vector(0.002862, 0.903996, 0), Vector(0.005926, 0.735967, 0), Vector(0.006446, 0.618811, 0), Vector(0.006719, 0.55751, 0)], [4, 1, 1, 1, 1, 1, 1, 1, 1, 1, 1, 1, 1, 1, 1, 1, 4], [0, 0.000130131, 0.000257221, 0.000384248, 0.000515635, 0.000648708, 0.000779344, 0.000911549, 0.001048384, 0.001125385, 0.001217776, 0.001324658, 0.001446235, 0.001583815, 0.001736416, 0.001903987, 0.002087895], False, 3, [1, 1, 1, 1, 1, 1, 1, 1, 1, 1, 1, 1, 1, 1, 1, 1, 1, 1, 1], False), False)
sketch2.addGeometry(Part.BSplineCurve([Vector(-1.275567, 2.08794, 0), Vector(-1.240922, 2.101521, 0), Vector(-1.172974, 2.128157, 0), Vector(-1.069087, 2.157882, 0), Vector(-0.965793, 2.174128, 0), Vector(-0.897312, 2.177148, 0), Vector(-0.863674, 2.178632, 0)], [4, 1, 1, 1, 4], [0, 0.000111602, 0.000218876, 0.000323455, 0.00042442], False, 3, [1, 1, 1, 1, 1, 1, 1], False), False)
sketch2.addGeometry(Part.BSplineCurve([Vector(-2.0792, 1.614325, 0), Vector(-2.002482, 1.66723, 0), Vector(-1.857628, 1.76712, 0), Vector(-1.644727, 1.895622, 0), Vector(-1.456092, 2.005797, 0), Vector(-1.332698, 2.061944, 0), Vector(-1.275567, 2.08794, 0)], [4, 1, 1, 1, 4], [0, 0.000279487, 0.000527707, 0.000745973, 0.000934162], False, 3, [1, 1, 1, 1, 1, 1, 1], False), False)
sketch2.addGeometry(Part.LineSegment(Vector(-2.0792, 1.614325, 0), Vector(-2.411738, 2.098017, 0)), False)
sketch2.addGeometry(Part.BSplineCurve([Vector(-0.895164, 2.823554, 0), Vector(-0.956173, 2.821613, 0), Vector(-1.078926, 2.817706, 0), Vector(-1.26162, 2.785868, 0), Vector(-1.443795, 2.736793, 0), Vector(-1.626419, 2.664926, 0), Vector(-1.813099, 2.567182, 0), Vector(-2.006364, 2.439294, 0), Vector(-2.208699, 2.281499, 0), Vector(-2.341974, 2.161061, 0), Vector(-2.411738, 2.098017, 0)], [4, 1, 1, 1, 1, 1, 1, 1, 4], [0, 0.000182922, 0.000368051, 0.000554754, 0.000748198, 0.000955526, 0.001185759, 0.001442504, 0.001724523], False, 3, [1, 1, 1, 1, 1, 1, 1, 1, 1, 1, 1], False), False)
sketch2.addGeometry(Part.BSplineCurve([Vector(0.571026, 0.620491, 0), Vector(0.570462, 0.69901, 0), Vector(0.569379, 0.849777, 0), Vector(0.563424, 1.066935, 0), Vector(0.552405, 1.265223, 0), Vector(0.536353, 1.445093, 0), Vector(0.514937, 1.60598, 0), Vector(0.49043, 1.749128, 0), Vector(0.460764, 1.873342, 0), Vector(0.416089, 2.01282, 0), Vector(0.342836, 2.165786, 0), Vector(0.232586, 2.33099, 0), Vector(0.095629, 2.475494, 0), Vector(-0.06301, 2.600989, 0), Vector(-0.244717, 2.700981, 0), Vector(-0.44575, 2.772763, 0), Vector(-0.664871, 2.816547, 0), Vector(-0.816859, 2.821172, 0), Vector(-0.895164, 2.823554, 0)], [4, 1, 1, 1, 1, 1, 1, 1, 1, 1, 1, 1, 1, 1, 1, 1, 4], [0, 0.000235561, 0.000452306, 0.000651648, 0.000831261, 0.000993907, 0.001138455, 0.001266769, 0.00137671, 0.001577301, 0.001773291, 0.00197023, 0.002172071, 0.002377855, 0.002589429, 0.002810275, 0.003044972], False, 3, [1, 1, 1, 1, 1, 1, 1, 1, 1, 1, 1, 1, 1, 1, 1, 1, 1, 1, 1], False), False)
sketch2.addGeometry(Part.LineSegment(Vector(0.571026, 0.620491, 0), Vector(0.571026, -3.625665, 0)), False)
sketch2.addGeometry(Part.BSplineCurve([Vector(5.657847, -3.786895, 0), Vector(5.774279, -3.783946, 0), Vector(6.002961, -3.778154, 0), Vector(6.339054, -3.733816, 0), Vector(6.659912, -3.657111, 0), Vector(6.96815, -3.554953, 0), Vector(7.26008, -3.418675, 0), Vector(7.537899, -3.253957, 0), Vector(7.800947, -3.059071, 0), Vector(8.045678, -2.835526, 0), Vector(8.269632, -2.5923, 0), Vector(8.466942, -2.332736, 0), Vector(8.632302, -2.058402, 0), Vector(8.768097, -1.770123, 0), Vector(8.874631, -1.468551, 0), Vector(8.948145, -1.152079, 0), Vector(8.995104, -0.822756, 0), Vector(9.000594, -0.598137, 0), Vector(9.003379, -0.48419, 0)], [4, 1, 1, 1, 1, 1, 1, 1, 1, 1, 1, 1, 1, 1, 1, 1, 4], [0, 0.00034924, 0.000685936, 0.001014683, 0.001337727, 0.001658397, 0.001979193, 0.002305187, 0.002638687, 0.002972106, 0.003295829, 0.003615111, 0.003931216, 0.004250316, 0.004572644, 0.004904516, 0.005246205], False, 3, [1, 1, 1, 1, 1, 1, 1, 1, 1, 1, 1, 1, 1, 1, 1, 1, 1, 1, 1], False), False)
sketch2.addGeometry(Part.BSplineCurve([Vector(2.39293, -0.453959, 0), Vector(2.39389, -0.528755, 0), Vector(2.395799, -0.677403, 0), Vector(2.41878, -0.898142, 0), Vector(2.452128, -1.11533, 0), Vector(2.49992, -1.328351, 0), Vector(2.562426, -1.536682, 0), Vector(2.636178, -1.741762, 0), Vector(2.726258, -1.941511, 0), Vector(2.828089, -2.136876, 0), Vector(2.941743, -2.324811, 0), Vector(3.067279, -2.502455, 0), Vector(3.200289, -2.671298, 0), Vector(3.346104, -2.826966, 0), Vector(3.49992, -2.973985, 0), Vector(3.664231, -3.110098, 0), Vector(3.838035, -3.236532, 0), Vector(4.02208, -3.350471, 0), Vector(4.211831, -3.45352, 0), Vector(4.407435, -3.541951, 0), Vector(4.606237, -3.617849, 0), Vector(4.809168, -3.679365, 0), Vector(5.015688, -3.727929, 0), Vector(5.226249, -3.761, 0), Vector(5.440683, -3.784039, 0), Vector(5.585147, -3.785939, 0), Vector(5.657847, -3.786895, 0)], [4, 1, 1, 1, 1, 1, 1, 1, 1, 1, 1, 1, 1, 1, 1, 1, 1, 1, 1, 1, 1, 1, 1, 1, 4], [0, 0.0002243, 0.000445769, 0.000665076, 0.000883266, 0.001100073, 0.001317242, 0.001536581, 0.001756873, 0.001977866, 0.002194878, 0.002409105, 0.002622128, 0.002834178, 0.003047063, 0.003261731, 0.003478432, 0.003695977, 0.003909056, 0.004121942, 0.004333924, 0.004544746, 0.004757833, 0.004973036, 0.00519104], False, 3, [1, 1, 1, 1, 1, 1, 1, 1, 1, 1, 1, 1, 1, 1, 1, 1, 1, 1, 1, 1, 1, 1, 1, 1, 1, 1, 1], False), False)
sketch2.addGeometry(Part.BSplineCurve([Vector(5.708231, 2.823554, 0), Vector(5.594285, 2.82077, 0), Vector(5.369667, 2.815283, 0), Vector(5.03993, 2.768247, 0), Vector(4.723235, 2.694693, 0), Vector(4.420488, 2.589577, 0), Vector(4.131519, 2.453725, 0), Vector(3.855764, 2.288074, 0), Vector(3.594329, 2.091516, 0), Vector(3.349381, 1.868443, 0), Vector(3.125261, 1.625598, 0), Vector(2.929867, 1.365393, 0), Vector(2.764179, 1.092934, 0), Vector(2.628783, 0.807463, 0), Vector(2.521592, 0.510362, 0), Vector(2.448463, 0.199649, 0), Vector(2.401149, -0.122906, 0), Vector(2.395696, -0.342524, 0), Vector(2.39293, -0.453959, 0)], [4, 1, 1, 1, 1, 1, 1, 1, 1, 1, 1, 1, 1, 1, 1, 1, 4], [0, 0.00034169, 0.000673561, 0.000997115, 0.0013158, 0.001633045, 0.001953405, 0.002279141, 0.002612641, 0.002946061, 0.003269026, 0.003587229, 0.003901058, 0.004215409, 0.004532836, 0.004857223, 0.005191362], False, 3, [1, 1, 1, 1, 1, 1, 1, 1, 1, 1, 1, 1, 1, 1, 1, 1, 1, 1, 1], False), False)
sketch2.addGeometry(Part.BSplineCurve([Vector(9.003379, -0.48419, 0), Vector(9.000595, -0.371083, 0), Vector(8.995106, -0.148135, 0), Vector(8.948092, 0.179098, 0), Vector(8.874359, 0.493661, 0), Vector(8.769087, 0.795027, 0), Vector(8.633939, 1.083516, 0), Vector(8.467478, 1.358367, 0), Vector(8.271398, 1.619672, 0), Vector(8.048252, 1.864567, 0), Vector(7.804995, 2.089133, 0), Vector(7.544079, 2.284813, 0), Vector(7.271372, 2.453195, 0), Vector(6.983364, 2.587549, 0), Vector(6.683876, 2.694933, 0), Vector(6.370227, 2.768148, 0), Vector(6.043887, 2.815375, 0), Vector(5.821344, 2.820798, 0), Vector(5.708231, 2.823554, 0)], [4, 1, 1, 1, 1, 1, 1, 1, 1, 1, 1, 1, 1, 1, 1, 1, 4], [0, 0.000339173, 0.000668549, 0.000989652, 0.001307147, 0.001624392, 0.001943673, 0.002269409, 0.002602909, 0.002936329, 0.003261057, 0.003579916, 0.003896021, 0.004212746, 0.004532623, 0.004860751, 0.005199924], False, 3, [1, 1, 1, 1, 1, 1, 1, 1, 1, 1, 1, 1, 1, 1, 1, 1, 1, 1, 1], False), False)
sketch2.addGeometry(Part.BSplineCurve([Vector(8.439072, -0.485449, 0), Vector(8.438352, -0.546381, 0), Vector(8.436922, -0.66725, 0), Vector(8.417982, -0.845938, 0), Vector(8.390852, -1.02066, 0), Vector(8.351754, -1.19073, 0), Vector(8.30136, -1.356191, 0), Vector(8.239222, -1.516888, 0), Vector(8.165948, -1.67342, 0), Vector(8.081854, -1.8254, 0), Vector(7.987326, -1.971236, 0), Vector(7.884034, -2.110654, 0), Vector(7.770193, -2.241035, 0), Vector(7.649058, -2.3656, 0), Vector(7.517602, -2.48169, 0), Vector(7.37642, -2.589345, 0), Vector(7.227226, -2.691163, 0), Vector(7.069259, -2.783013, 0), Vector(6.906231, -2.867837, 0), Vector(6.738945, -2.94051, 0), Vector(6.569297, -3.002262, 0), Vector(6.397717, -3.054932, 0), Vector(6.222762, -3.093392, 0), Vector(6.045614, -3.120751, 0), Vector(5.866517, -3.139791, 0), Vector(5.746069, -3.141244, 0), Vector(5.685558, -3.141973, 0)], [4, 1, 1, 1, 1, 1, 1, 1, 1, 1, 1, 1, 1, 1, 1, 1, 1, 1, 1, 1, 1, 1, 1, 1, 4], [0, 0.000182713, 0.000362446, 0.000538467, 0.000712941, 0.000885471, 0.001056936, 0.001229369, 0.001403588, 0.001577583, 0.001750403, 0.001923644, 0.002096446, 0.002271346, 0.002449215, 0.002628788, 0.002812847, 0.002997065, 0.00317983, 0.003359549, 0.003538472, 0.00371786, 0.00389637, 0.004076102, 0.004257556], False, 3, [1, 1, 1, 1, 1, 1, 1, 1, 1, 1, 1, 1, 1, 1, 1, 1, 1, 1, 1, 1, 1, 1, 1, 1, 1, 1, 1], False), False)
sketch2.addGeometry(Part.BSplineCurve([Vector(5.685558, 2.178632, 0), Vector(5.747737, 2.177778, 0), Vector(5.871055, 2.176084, 0), Vector(6.054477, 2.159019, 0), Vector(6.234594, 2.131653, 0), Vector(6.411154, 2.092254, 0), Vector(6.583956, 2.042943, 0), Vector(6.753723, 1.984361, 0), Vector(6.918644, 1.911274, 0), Vector(7.080802, 1.830522, 0), Vector(7.236019, 1.738466, 0), Vector(7.384192, 1.639586, 0), Vector(7.521586, 1.530052, 0), Vector(7.651638, 1.4145, 0), Vector(7.773136, 1.290602, 0), Vector(7.885258, 1.158518, 0), Vector(7.987627, 1.017414, 0), Vector(8.081885, 0.869583, 0), Vector(8.16597, 0.715085, 0), Vector(8.239232, 0.556035, 0), Vector(8.301387, 0.392826, 0), Vector(8.351562, 0.225221, 0), Vector(8.390881, 0.05354, 0), Vector(8.417973, -0.122449, 0), Vector(8.436924, -0.302392, 0), Vector(8.438352, -0.424098, 0), Vector(8.439072, -0.485449, 0)], [4, 1, 1, 1, 1, 1, 1, 1, 1, 1, 1, 1, 1, 1, 1, 1, 1, 1, 1, 1, 1, 1, 1, 1, 4], [0, 0.000186491, 0.000369867, 0.000552111, 0.000732728, 0.000912151, 0.001091021, 0.001270974, 0.001452926, 0.001634174, 0.001811998, 0.001986885, 0.002160844, 0.002333645, 0.002507024, 0.00268011, 0.002856226, 0.003032653, 0.003207372, 0.003381189, 0.00355613, 0.003731832, 0.003909097, 0.004090083, 0.004274056], False, 3, [1, 1, 1, 1, 1, 1, 1, 1, 1, 1, 1, 1, 1, 1, 1, 1, 1, 1, 1, 1, 1, 1, 1, 1, 1, 1, 1], False), False)
sketch2.addGeometry(Part.BSplineCurve([Vector(2.957237, -0.456478, 0), Vector(2.959527, -0.36564, 0), Vector(2.964033, -0.186933, 0), Vector(3.003481, 0.07495, 0), Vector(3.064245, 0.326628, 0), Vector(3.153817, 0.566725, 0), Vector(3.265834, 0.797304, 0), Vector(3.404218, 1.01632, 0), Vector(3.568171, 1.223833, 0), Vector(3.75441, 1.418392, 0), Vector(3.958002, 1.595976, 0), Vector(4.174187, 1.751852, 0), Vector(4.400651, 1.883739, 0), Vector(4.637984, 1.991182, 0), Vector(4.884918, 2.076321, 0), Vector(5.143044, 2.134671, 0), Vector(5.410644, 2.173074, 0), Vector(5.593051, 2.176762, 0), Vector(5.685558, 2.178632, 0)], [4, 1, 1, 1, 1, 1, 1, 1, 1, 1, 1, 1, 1, 1, 1, 1, 4], [0, 0.000272368, 0.000535832, 0.000792759, 0.001047811, 0.001303003, 0.001560563, 0.001823387, 0.002095117, 0.002367417, 0.002632745, 0.002893509, 0.003152248, 0.003413158, 0.003675624, 0.003945149, 0.004222495], False, 3, [1, 1, 1, 1, 1, 1, 1, 1, 1, 1, 1, 1, 1, 1, 1, 1, 1, 1, 1], False), False)
sketch2.addGeometry(Part.BSplineCurve([Vector(5.685558, -3.141973, 0), Vector(5.625886, -3.141246, 0), Vector(5.507112, -3.139798, 0), Vector(5.330537, -3.120726, 0), Vector(5.156284, -3.093544, 0), Vector(4.984318, -3.054772, 0), Vector(4.815357, -3.001945, 0), Vector(4.647828, -2.941148, 0), Vector(4.483257, -2.867091, 0), Vector(4.322187, -2.78342, 0), Vector(4.166038, -2.690809, 0), Vector(4.018697, -2.588455, 0), Vector(3.879782, -2.47876, 0), Vector(3.749632, -2.361466, 0), Vector(3.628631, -2.235976, 0), Vector(3.514397, -2.104193, 0), Vector(3.411508, -1.962351, 0), Vector(3.317215, -1.814295, 0), Vector(3.232834, -1.660218, 0), Vector(3.157799, -1.501743, 0), Vector(3.096421, -1.337577, 0), Vector(3.046365, -1.169501, 0), Vector(3.004864, -0.99778, 0), Vector(2.978574, -0.821113, 0), Vector(2.959292, -0.640387, 0), Vector(2.957927, -0.518253, 0), Vector(2.957237, -0.456478, 0)], [4, 1, 1, 1, 1, 1, 1, 1, 1, 1, 1, 1, 1, 1, 1, 1, 1, 1, 1, 1, 1, 1, 1, 1, 4], [0, 0.000178936, 0.000356161, 0.000532183, 0.000707884, 0.000884397, 0.001062933, 0.001242241, 0.00142534, 0.001607231, 0.001786477, 0.001963133, 0.002137934, 0.002311637, 0.002485833, 0.002660679, 0.002836795, 0.003012117, 0.003187366, 0.003362362, 0.003537303, 0.003713289, 0.003891798, 0.004072784, 0.004258016], False, 3, [1, 1, 1, 1, 1, 1, 1, 1, 1, 1, 1, 1, 1, 1, 1, 1, 1, 1, 1, 1, 1, 1, 1, 1, 1, 1, 1], False), False)
sketch2.addConstraint(Sketcher.Constraint("Block", 0))
sketch2.addConstraint(Sketcher.Constraint("Block", 1))
sketch2.addConstraint(Sketcher.Constraint("Block", 2))
sketch2.addConstraint(Sketcher.Constraint("Block", 3))
sketch2.addConstraint(Sketcher.Constraint("Block", 4))
sketch2.addConstraint(Sketcher.Constraint("Block", 5))
sketch2.addConstraint(Sketcher.Constraint("Block", 6))
sketch2.addConstraint(Sketcher.Constraint("Block", 7))
sketch2.addConstraint(Sketcher.Constraint("Block", 10))
sketch2.addConstraint(Sketcher.Constraint("Block", 11))
sketch2.addConstraint(Sketcher.Constraint("Block", 12))
sketch2.addConstraint(Sketcher.Constraint("Block", 14))
sketch2.addConstraint(Sketcher.Constraint("Block", 15))
sketch2.addConstraint(Sketcher.Constraint("Block", 17))
sketch2.addConstraint(Sketcher.Constraint("Block", 18))
sketch2.addConstraint(Sketcher.Constraint("Block", 19))
sketch2.addConstraint(Sketcher.Constraint("Block", 20))
sketch2.addConstraint(Sketcher.Constraint("Block", 21))
sketch2.addConstraint(Sketcher.Constraint("Block", 22))
sketch2.addConstraint(Sketcher.Constraint("Block", 23))
sketch2.addConstraint(Sketcher.Constraint("Block", 24))
sketch2.addConstraint(Sketcher.Constraint("Coincident", 8, 2, 9, 1))
sketch2.addConstraint(Sketcher.Constraint("Coincident", 9, 2, 10, 2))
sketch2.addConstraint(Sketcher.Constraint("Coincident", 12, 1, 13, 1))
sketch2.addConstraint(Sketcher.Constraint("Coincident", 13, 2, 14, 2))
sketch2.addConstraint(Sketcher.Constraint("Coincident", 15, 1, 16, 1))
sketch2.addConstraint(Sketcher.Constraint("Coincident", 16, 2, 8, 1))
sketch2.addConstraint(Sketcher.Constraint("Horizontal", 8))
sketch2.addConstraint(Sketcher.Constraint("Vertical", 9))
sketch2.addConstraint(Sketcher.Constraint("Vertical", 16))
sketch2.addConstraint(Sketcher.Constraint("DistanceY", 9, 1, 9, 2, Q("4.183175 mm")))
pocket1 = doc.addObject("PartDesign::Pocket", "Pocket")
body.addObject(pocket1)
pocket1.Profile = sketch2
pocket1.Type = "ThroughAll"
pocket1.Reversed = True

doc.recompute()
